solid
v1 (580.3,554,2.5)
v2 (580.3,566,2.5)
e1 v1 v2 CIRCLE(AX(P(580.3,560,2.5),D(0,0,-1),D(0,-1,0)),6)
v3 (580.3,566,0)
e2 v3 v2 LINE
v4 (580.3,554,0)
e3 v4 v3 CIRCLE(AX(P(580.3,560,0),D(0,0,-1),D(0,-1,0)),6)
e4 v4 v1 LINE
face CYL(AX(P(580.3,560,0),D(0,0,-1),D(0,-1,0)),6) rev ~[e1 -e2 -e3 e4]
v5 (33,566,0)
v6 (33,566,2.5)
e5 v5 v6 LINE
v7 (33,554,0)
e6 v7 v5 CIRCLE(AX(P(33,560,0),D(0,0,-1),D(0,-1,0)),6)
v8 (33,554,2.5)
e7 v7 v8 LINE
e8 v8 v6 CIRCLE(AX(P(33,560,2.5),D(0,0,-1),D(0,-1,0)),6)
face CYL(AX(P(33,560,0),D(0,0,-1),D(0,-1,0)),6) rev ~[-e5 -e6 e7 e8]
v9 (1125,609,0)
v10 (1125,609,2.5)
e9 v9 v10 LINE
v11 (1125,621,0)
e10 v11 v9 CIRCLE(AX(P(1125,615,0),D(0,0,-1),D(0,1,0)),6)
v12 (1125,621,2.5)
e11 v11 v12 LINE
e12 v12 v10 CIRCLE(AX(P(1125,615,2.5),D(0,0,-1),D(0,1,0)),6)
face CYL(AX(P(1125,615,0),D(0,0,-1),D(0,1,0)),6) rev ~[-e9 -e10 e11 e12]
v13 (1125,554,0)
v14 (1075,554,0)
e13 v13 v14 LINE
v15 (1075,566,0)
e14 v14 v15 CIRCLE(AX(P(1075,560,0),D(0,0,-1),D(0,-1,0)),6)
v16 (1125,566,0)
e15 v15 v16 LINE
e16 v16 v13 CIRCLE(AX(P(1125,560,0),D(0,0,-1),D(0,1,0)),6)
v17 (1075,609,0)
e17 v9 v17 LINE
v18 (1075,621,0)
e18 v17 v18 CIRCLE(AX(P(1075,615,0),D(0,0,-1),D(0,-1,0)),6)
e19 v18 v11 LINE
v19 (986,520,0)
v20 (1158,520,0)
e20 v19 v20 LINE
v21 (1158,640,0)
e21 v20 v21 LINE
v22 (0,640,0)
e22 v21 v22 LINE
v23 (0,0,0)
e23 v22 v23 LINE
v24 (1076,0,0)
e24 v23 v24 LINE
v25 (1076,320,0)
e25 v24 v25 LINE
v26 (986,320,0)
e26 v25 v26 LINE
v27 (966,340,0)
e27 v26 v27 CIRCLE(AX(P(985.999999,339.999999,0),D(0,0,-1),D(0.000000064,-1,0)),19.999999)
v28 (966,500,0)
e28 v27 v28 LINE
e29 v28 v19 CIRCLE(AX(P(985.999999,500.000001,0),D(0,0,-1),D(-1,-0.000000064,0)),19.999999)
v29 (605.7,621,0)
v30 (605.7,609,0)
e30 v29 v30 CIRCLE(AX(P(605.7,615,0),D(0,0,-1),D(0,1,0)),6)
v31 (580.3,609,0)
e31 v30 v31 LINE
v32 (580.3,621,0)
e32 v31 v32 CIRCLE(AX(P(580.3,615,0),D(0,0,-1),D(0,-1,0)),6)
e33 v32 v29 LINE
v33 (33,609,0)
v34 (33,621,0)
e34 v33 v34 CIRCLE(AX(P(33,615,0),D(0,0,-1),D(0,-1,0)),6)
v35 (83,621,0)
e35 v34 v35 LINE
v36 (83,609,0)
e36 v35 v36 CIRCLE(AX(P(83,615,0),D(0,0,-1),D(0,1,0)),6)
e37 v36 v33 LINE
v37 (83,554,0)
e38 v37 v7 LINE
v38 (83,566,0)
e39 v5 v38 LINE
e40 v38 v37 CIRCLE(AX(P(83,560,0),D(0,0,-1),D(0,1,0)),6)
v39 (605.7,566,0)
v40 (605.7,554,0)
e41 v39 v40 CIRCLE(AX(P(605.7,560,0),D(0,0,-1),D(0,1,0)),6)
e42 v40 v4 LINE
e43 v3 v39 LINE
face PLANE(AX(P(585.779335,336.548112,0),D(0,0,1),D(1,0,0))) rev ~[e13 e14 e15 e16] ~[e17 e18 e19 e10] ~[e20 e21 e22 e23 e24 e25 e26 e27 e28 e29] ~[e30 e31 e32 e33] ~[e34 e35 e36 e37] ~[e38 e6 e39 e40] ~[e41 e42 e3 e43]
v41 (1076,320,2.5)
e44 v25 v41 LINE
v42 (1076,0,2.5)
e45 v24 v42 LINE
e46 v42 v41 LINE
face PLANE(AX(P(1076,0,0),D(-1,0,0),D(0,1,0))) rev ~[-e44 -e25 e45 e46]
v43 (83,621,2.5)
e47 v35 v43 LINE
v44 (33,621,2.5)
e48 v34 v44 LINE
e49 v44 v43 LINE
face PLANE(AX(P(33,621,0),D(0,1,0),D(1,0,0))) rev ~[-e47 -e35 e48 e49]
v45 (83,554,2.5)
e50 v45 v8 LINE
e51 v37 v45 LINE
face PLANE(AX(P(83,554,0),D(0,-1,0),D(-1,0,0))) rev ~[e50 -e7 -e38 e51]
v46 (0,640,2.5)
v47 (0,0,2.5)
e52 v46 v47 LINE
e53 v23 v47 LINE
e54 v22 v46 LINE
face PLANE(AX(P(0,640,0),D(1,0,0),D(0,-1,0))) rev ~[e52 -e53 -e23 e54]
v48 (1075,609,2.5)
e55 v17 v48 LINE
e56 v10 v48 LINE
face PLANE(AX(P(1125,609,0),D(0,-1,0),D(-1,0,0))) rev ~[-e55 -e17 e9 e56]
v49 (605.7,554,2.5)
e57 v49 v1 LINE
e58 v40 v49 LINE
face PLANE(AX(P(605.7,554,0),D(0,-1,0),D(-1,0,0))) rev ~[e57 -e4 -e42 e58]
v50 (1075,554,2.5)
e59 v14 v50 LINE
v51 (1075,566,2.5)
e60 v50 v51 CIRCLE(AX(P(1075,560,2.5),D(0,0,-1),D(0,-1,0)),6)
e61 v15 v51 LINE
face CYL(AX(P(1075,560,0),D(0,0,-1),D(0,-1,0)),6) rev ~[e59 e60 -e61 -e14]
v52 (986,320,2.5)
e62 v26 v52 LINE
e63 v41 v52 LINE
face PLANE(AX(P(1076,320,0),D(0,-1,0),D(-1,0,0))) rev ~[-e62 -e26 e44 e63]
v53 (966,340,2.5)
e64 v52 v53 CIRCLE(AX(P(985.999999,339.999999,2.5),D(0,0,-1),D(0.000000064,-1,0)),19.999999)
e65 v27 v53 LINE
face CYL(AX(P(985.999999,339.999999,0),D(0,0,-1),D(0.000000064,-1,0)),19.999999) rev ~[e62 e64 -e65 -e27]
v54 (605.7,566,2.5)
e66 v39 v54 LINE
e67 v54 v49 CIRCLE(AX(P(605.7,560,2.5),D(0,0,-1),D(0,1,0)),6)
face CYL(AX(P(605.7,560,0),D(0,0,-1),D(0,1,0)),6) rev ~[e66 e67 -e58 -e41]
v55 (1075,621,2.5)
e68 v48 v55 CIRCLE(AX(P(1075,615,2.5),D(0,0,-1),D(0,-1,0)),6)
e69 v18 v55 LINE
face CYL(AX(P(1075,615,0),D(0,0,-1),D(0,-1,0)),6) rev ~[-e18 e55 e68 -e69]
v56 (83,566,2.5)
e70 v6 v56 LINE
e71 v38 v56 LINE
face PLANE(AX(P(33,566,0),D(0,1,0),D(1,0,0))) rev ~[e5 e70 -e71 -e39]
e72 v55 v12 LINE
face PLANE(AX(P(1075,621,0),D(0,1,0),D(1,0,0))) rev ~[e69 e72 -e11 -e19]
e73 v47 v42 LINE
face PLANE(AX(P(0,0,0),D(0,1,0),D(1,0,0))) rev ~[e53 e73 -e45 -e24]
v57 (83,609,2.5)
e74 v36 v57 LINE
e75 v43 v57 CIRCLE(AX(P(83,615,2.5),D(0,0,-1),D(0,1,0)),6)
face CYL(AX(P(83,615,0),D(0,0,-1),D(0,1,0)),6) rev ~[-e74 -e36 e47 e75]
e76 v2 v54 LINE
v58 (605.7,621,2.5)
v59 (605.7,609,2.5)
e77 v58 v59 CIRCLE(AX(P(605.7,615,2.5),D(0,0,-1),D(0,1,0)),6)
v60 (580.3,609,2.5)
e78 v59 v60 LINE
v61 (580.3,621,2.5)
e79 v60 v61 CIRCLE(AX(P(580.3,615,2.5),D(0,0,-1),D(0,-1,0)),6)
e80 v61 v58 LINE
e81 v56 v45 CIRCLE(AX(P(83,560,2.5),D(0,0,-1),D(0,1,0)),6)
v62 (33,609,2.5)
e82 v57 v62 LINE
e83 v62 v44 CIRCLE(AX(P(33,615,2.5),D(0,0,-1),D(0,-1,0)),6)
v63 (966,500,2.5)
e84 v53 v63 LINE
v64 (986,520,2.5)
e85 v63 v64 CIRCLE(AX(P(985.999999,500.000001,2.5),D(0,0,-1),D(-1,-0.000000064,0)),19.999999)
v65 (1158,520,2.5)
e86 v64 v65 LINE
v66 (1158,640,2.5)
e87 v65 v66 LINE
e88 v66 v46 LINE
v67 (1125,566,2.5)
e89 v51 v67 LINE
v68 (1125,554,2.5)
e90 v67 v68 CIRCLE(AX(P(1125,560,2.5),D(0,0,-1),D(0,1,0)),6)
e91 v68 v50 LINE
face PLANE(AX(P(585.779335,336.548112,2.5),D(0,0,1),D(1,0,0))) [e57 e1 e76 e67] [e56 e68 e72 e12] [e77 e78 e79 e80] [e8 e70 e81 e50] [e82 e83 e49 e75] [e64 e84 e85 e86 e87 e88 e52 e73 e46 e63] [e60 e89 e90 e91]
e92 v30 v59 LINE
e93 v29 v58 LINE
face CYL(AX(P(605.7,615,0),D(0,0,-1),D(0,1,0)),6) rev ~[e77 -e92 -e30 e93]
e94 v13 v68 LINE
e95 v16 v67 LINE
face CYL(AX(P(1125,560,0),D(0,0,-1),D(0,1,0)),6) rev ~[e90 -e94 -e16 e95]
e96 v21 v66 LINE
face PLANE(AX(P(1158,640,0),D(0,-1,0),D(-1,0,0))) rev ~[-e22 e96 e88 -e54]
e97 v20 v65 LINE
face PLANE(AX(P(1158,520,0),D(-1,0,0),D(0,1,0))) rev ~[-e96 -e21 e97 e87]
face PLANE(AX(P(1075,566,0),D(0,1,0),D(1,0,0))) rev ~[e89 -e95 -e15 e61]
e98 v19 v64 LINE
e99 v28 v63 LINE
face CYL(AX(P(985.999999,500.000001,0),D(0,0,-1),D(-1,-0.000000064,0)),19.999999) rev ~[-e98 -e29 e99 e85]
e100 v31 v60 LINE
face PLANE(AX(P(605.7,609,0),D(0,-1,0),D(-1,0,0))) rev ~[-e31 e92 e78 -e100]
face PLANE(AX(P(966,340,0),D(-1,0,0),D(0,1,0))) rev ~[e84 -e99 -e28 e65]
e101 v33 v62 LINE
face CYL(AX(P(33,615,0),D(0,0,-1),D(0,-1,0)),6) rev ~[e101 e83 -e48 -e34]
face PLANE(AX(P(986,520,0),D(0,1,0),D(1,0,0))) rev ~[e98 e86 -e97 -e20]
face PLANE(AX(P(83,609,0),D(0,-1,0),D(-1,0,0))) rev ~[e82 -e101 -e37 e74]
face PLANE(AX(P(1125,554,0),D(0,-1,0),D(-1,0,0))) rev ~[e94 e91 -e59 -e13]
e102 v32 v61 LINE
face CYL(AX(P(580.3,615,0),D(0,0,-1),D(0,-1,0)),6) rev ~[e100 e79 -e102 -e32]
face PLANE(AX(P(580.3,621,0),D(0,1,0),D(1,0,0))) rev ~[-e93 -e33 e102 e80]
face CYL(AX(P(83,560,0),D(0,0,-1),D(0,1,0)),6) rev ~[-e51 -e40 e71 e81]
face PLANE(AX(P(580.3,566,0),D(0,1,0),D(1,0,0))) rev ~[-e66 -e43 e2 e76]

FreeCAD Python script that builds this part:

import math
import FreeCAD as App
import Part
import Sketcher

V = App.Vector

doc = App.newDocument("Part")
params = doc.addObject("Spreadsheet::Sheet", "Params")
for row, (alias, value) in enumerate([
    ("sketch1_radius", "19.999999 mm"),
    ("sketch1_radius2", "6 mm"),
    ("sketch1_width", "1076 mm"),
    ("sketch1_width2", "90 mm"),
    ("sketch1_width3", "172 mm"),
    ("pad1_length", "2.5 mm"),
], start=1):
    params.set(f"A{row}", alias)
    params.set(f"B{row}", "=" + value)
    params.setAlias(f"B{row}", alias)

body = doc.addObject("PartDesign::Body", "Body")

sketch1 = body.newObject("Sketcher::SketchObject", "Sketch")
sketch1.AttachmentSupport = (doc.getObject("XY_Plane"), [""])
sketch1.MapMode = "FlatFace"
sketch1.addGeometry(Part.LineSegment(V(0, 640, 0), V(0, 0, 0)), False)
sketch1.addGeometry(Part.LineSegment(V(0, 0, 0), V(1076, 0, 0)), False)
sketch1.addGeometry(Part.LineSegment(V(1076, 0, 0), V(1076, 320, 0)), False)
sketch1.addGeometry(Part.LineSegment(V(1076, 320, 0), V(986, 320, 0)), False)
sketch1.addGeometry(Part.ArcOfCircle(Part.Circle(V(985.999999, 339.999999, 0), V(0, 0, 1), 19.999999), math.radians(179.999996), math.radians(270.000004)), False)
sketch1.addGeometry(Part.LineSegment(V(966, 340, 0), V(966, 500, 0)), False)
sketch1.addGeometry(Part.ArcOfCircle(Part.Circle(V(985.999999, 500.000001, 0), V(0, 0, 1), 19.999999), math.radians(89.999996), math.radians(180.000004)), False)
sketch1.addGeometry(Part.LineSegment(V(986, 520, 0), V(1158, 520, 0)), False)
sketch1.addGeometry(Part.LineSegment(V(1158, 520, 0), V(1158, 640, 0)), False)
sketch1.addGeometry(Part.LineSegment(V(1158, 640, 0), V(0, 640, 0)), False)
sketch1.addGeometry(Part.LineSegment(V(83, 554, 0), V(33, 554, 0)), False)
sketch1.addGeometry(Part.ArcOfCircle(Part.Circle(V(33, 560, 0), V(0, 0, 1), 6), math.radians(90), math.radians(270)), False)
sketch1.addGeometry(Part.LineSegment(V(33, 566, 0), V(83, 566, 0)), False)
sketch1.addGeometry(Part.ArcOfCircle(Part.Circle(V(83, 560, 0), V(0, 0, 1), 6), math.radians(-90), math.radians(90)), False)
sketch1.addGeometry(Part.ArcOfCircle(Part.Circle(V(605.7, 560, 0), V(0, 0, 1), 6), math.radians(-90), math.radians(90)), False)
sketch1.addGeometry(Part.LineSegment(V(605.7, 554, 0), V(580.3, 554, 0)), False)
sketch1.addGeometry(Part.ArcOfCircle(Part.Circle(V(580.3, 560, 0), V(0, 0, 1), 6), math.radians(90), math.radians(270)), False)
sketch1.addGeometry(Part.LineSegment(V(580.3, 566, 0), V(605.7, 566, 0)), False)
sketch1.addGeometry(Part.LineSegment(V(1125, 554, 0), V(1075, 554, 0)), False)
sketch1.addGeometry(Part.ArcOfCircle(Part.Circle(V(1075, 560, 0), V(0, 0, 1), 6), math.radians(90), math.radians(270)), False)
sketch1.addGeometry(Part.LineSegment(V(1075, 566, 0), V(1125, 566, 0)), False)
sketch1.addGeometry(Part.ArcOfCircle(Part.Circle(V(1125, 560, 0), V(0, 0, 1), 6), math.radians(-90), math.radians(90)), False)
sketch1.addGeometry(Part.LineSegment(V(83, 609, 0), V(33, 609, 0)), False)
sketch1.addGeometry(Part.ArcOfCircle(Part.Circle(V(33, 615, 0), V(0, 0, 1), 6), math.radians(90), math.radians(270)), False)
sketch1.addGeometry(Part.LineSegment(V(33, 621, 0), V(83, 621, 0)), False)
sketch1.addGeometry(Part.ArcOfCircle(Part.Circle(V(83, 615, 0), V(0, 0, 1), 6), math.radians(-90), math.radians(90)), False)
sketch1.addGeometry(Part.ArcOfCircle(Part.Circle(V(605.7, 615, 0), V(0, 0, 1), 6), math.radians(-90), math.radians(90)), False)
sketch1.addGeometry(Part.LineSegment(V(605.7, 609, 0), V(580.3, 609, 0)), False)
sketch1.addGeometry(Part.ArcOfCircle(Part.Circle(V(580.3, 615, 0), V(0, 0, 1), 6), math.radians(90), math.radians(270)), False)
sketch1.addGeometry(Part.LineSegment(V(580.3, 621, 0), V(605.7, 621, 0)), False)
sketch1.addGeometry(Part.LineSegment(V(1125, 609, 0), V(1075, 609, 0)), False)
sketch1.addGeometry(Part.ArcOfCircle(Part.Circle(V(1075, 615, 0), V(0, 0, 1), 6), math.radians(90), math.radians(270)), False)
sketch1.addGeometry(Part.LineSegment(V(1075, 621, 0), V(1125, 621, 0)), False)
sketch1.addGeometry(Part.ArcOfCircle(Part.Circle(V(1125, 615, 0), V(0, 0, 1), 6), math.radians(-90), math.radians(90)), False)
sketch1.addConstraint(Sketcher.Constraint("Coincident", 0, 2, 1, 1))
sketch1.addConstraint(Sketcher.Constraint("Coincident", 1, 2, 2, 1))
sketch1.addConstraint(Sketcher.Constraint("Coincident", 2, 2, 3, 1))
sketch1.addConstraint(Sketcher.Constraint("Tangent", 3, 2, 4, 2))
sketch1.addConstraint(Sketcher.Constraint("Tangent", 4, 1, 5, 1))
sketch1.addConstraint(Sketcher.Constraint("Tangent", 5, 2, 6, 2))
sketch1.addConstraint(Sketcher.Constraint("Tangent", 6, 1, 7, 1))
sketch1.addConstraint(Sketcher.Constraint("Coincident", 7, 2, 8, 1))
sketch1.addConstraint(Sketcher.Constraint("Coincident", 8, 2, 9, 1))
sketch1.addConstraint(Sketcher.Constraint("Coincident", 9, 2, 0, 1))
sketch1.addConstraint(Sketcher.Constraint("Tangent", 10, 2, 11, 2))
sketch1.addConstraint(Sketcher.Constraint("Tangent", 11, 1, 12, 1))
sketch1.addConstraint(Sketcher.Constraint("Tangent", 12, 2, 13, 2))
sketch1.addConstraint(Sketcher.Constraint("Tangent", 13, 1, 10, 1))
sketch1.addConstraint(Sketcher.Constraint("Tangent", 14, 1, 15, 1))
sketch1.addConstraint(Sketcher.Constraint("Tangent", 15, 2, 16, 2))
sketch1.addConstraint(Sketcher.Constraint("Tangent", 16, 1, 17, 1))
sketch1.addConstraint(Sketcher.Constraint("Tangent", 17, 2, 14, 2))
sketch1.addConstraint(Sketcher.Constraint("Tangent", 18, 2, 19, 2))
sketch1.addConstraint(Sketcher.Constraint("Tangent", 19, 1, 20, 1))
sketch1.addConstraint(Sketcher.Constraint("Tangent", 20, 2, 21, 2))
sketch1.addConstraint(Sketcher.Constraint("Tangent", 21, 1, 18, 1))
sketch1.addConstraint(Sketcher.Constraint("Tangent", 22, 2, 23, 2))
sketch1.addConstraint(Sketcher.Constraint("Tangent", 23, 1, 24, 1))
sketch1.addConstraint(Sketcher.Constraint("Tangent", 24, 2, 25, 2))
sketch1.addConstraint(Sketcher.Constraint("Tangent", 25, 1, 22, 1))
sketch1.addConstraint(Sketcher.Constraint("Tangent", 26, 1, 27, 1))
sketch1.addConstraint(Sketcher.Constraint("Tangent", 27, 2, 28, 2))
sketch1.addConstraint(Sketcher.Constraint("Tangent", 28, 1, 29, 1))
sketch1.addConstraint(Sketcher.Constraint("Tangent", 29, 2, 26, 2))
sketch1.addConstraint(Sketcher.Constraint("Tangent", 30, 2, 31, 2))
sketch1.addConstraint(Sketcher.Constraint("Tangent", 31, 1, 32, 1))
sketch1.addConstraint(Sketcher.Constraint("Tangent", 32, 2, 33, 2))
sketch1.addConstraint(Sketcher.Constraint("Tangent", 33, 1, 30, 1))
sketch1.addConstraint(Sketcher.Constraint("Vertical", 0))
sketch1.addConstraint(Sketcher.Constraint("Horizontal", 1))
sketch1.addConstraint(Sketcher.Constraint("Vertical", 2))
sketch1.addConstraint(Sketcher.Constraint("Horizontal", 3))
sketch1.addConstraint(Sketcher.Constraint("Vertical", 5))
sketch1.addConstraint(Sketcher.Constraint("Horizontal", 7))
sketch1.addConstraint(Sketcher.Constraint("Vertical", 8))
sketch1.addConstraint(Sketcher.Constraint("Horizontal", 9))
sketch1.addConstraint(Sketcher.Constraint("Horizontal", 10))
sketch1.addConstraint(Sketcher.Constraint("Horizontal", 12))
sketch1.addConstraint(Sketcher.Constraint("Horizontal", 15))
sketch1.addConstraint(Sketcher.Constraint("Horizontal", 17))
sketch1.addConstraint(Sketcher.Constraint("Horizontal", 18))
sketch1.addConstraint(Sketcher.Constraint("Horizontal", 20))
sketch1.addConstraint(Sketcher.Constraint("Horizontal", 22))
sketch1.addConstraint(Sketcher.Constraint("Horizontal", 24))
sketch1.addConstraint(Sketcher.Constraint("Horizontal", 27))
sketch1.addConstraint(Sketcher.Constraint("Horizontal", 29))
sketch1.addConstraint(Sketcher.Constraint("Horizontal", 30))
sketch1.addConstraint(Sketcher.Constraint("Horizontal", 32))
sketch1.addConstraint(Sketcher.Constraint("Coincident", 0, 2, -1, 1))
sketch1.addConstraint(Sketcher.Constraint("Equal", 4, 6))
sketch1.addConstraint(Sketcher.Constraint("Equal", 13, 14))
sketch1.addConstraint(Sketcher.Constraint("Equal", 16, 19))
sketch1.addConstraint(Sketcher.Constraint("Equal", 21, 23))
sketch1.addConstraint(Sketcher.Constraint("Equal", 25, 26))
sketch1.addConstraint(Sketcher.Constraint("Equal", 28, 31))
sketch1.addConstraint(Sketcher.Constraint("Horizontal", 13, 3, 14, 3))
sketch1.addConstraint(Sketcher.Constraint("Horizontal", 16, 3, 19, 3))
sketch1.addConstraint(Sketcher.Constraint("Horizontal", 25, 3, 26, 3))
sketch1.addConstraint(Sketcher.Constraint("Horizontal", 28, 3, 31, 3))
sketch1.addConstraint(Sketcher.Constraint("Vertical", 11, 3, 23, 3))
sketch1.addConstraint(Sketcher.Constraint("Vertical", 13, 3, 25, 3))
sketch1.addConstraint(Sketcher.Constraint("Vertical", 14, 3, 26, 3))
sketch1.addConstraint(Sketcher.Constraint("Vertical", 16, 3, 28, 3))
sketch1.addConstraint(Sketcher.Constraint("Vertical", 19, 3, 31, 3))
sketch1.addConstraint(Sketcher.Constraint("Vertical", 21, 3, 33, 3))
sketch1.addConstraint(Sketcher.Constraint("Equal", 12, 18))
sketch1.addConstraint(Sketcher.Constraint("Radius", 4, 19.999999))
sketch1.addConstraint(Sketcher.Constraint("Radius", 11, 6.0))
sketch1.addConstraint(Sketcher.Constraint("DistanceX", 1, 1, 1, 2, 1076.0))
sketch1.addConstraint(Sketcher.Constraint("DistanceX", 3, 2, 3, 1, 90.0))
sketch1.addConstraint(Sketcher.Constraint("DistanceX", 7, 1, 7, 2, 172.0))
sketch1.addConstraint(Sketcher.Constraint("DistanceX", 10, 2, 10, 1, 50.0))
sketch1.addConstraint(Sketcher.Constraint("DistanceY", 0, 2, 0, 1, 640.0))
sketch1.addConstraint(Sketcher.Constraint("DistanceY", 2, 1, 2, 2, 320.0))
sketch1.addConstraint(Sketcher.Constraint("DistanceY", 5, 1, 5, 2, 160.0))
sketch1.addConstraint(Sketcher.Constraint("DistanceX", 15, 2, 15, 1, 25.4))
sketch1.addConstraint(Sketcher.Constraint("DistanceX", -1, 1, 11, 3, 33.0))
sketch1.addConstraint(Sketcher.Constraint("DistanceY", -1, 1, 11, 3, 560.0))
sketch1.addConstraint(Sketcher.Constraint("DistanceX", -1, 1, 19, 3, 1075.0))
sketch1.addConstraint(Sketcher.Constraint("DistanceY", -1, 1, 23, 3, 615.0))
sketch1.addConstraint(Sketcher.Constraint("DistanceX", -1, 1, 14, 3, 605.7))
sketch1.setExpression("Constraints[72]", "Params.sketch1_radius")
sketch1.setExpression("Constraints[73]", "Params.sketch1_radius2")
sketch1.setExpression("Constraints[74]", "Params.sketch1_width")
sketch1.setExpression("Constraints[75]", "Params.sketch1_width2")
sketch1.setExpression("Constraints[76]", "Params.sketch1_width3")
pad1 = body.newObject("PartDesign::Pad", "Pad")
pad1.Profile = sketch1
pad1.setExpression("Length", "Params.pad1_length")

doc.recompute()
